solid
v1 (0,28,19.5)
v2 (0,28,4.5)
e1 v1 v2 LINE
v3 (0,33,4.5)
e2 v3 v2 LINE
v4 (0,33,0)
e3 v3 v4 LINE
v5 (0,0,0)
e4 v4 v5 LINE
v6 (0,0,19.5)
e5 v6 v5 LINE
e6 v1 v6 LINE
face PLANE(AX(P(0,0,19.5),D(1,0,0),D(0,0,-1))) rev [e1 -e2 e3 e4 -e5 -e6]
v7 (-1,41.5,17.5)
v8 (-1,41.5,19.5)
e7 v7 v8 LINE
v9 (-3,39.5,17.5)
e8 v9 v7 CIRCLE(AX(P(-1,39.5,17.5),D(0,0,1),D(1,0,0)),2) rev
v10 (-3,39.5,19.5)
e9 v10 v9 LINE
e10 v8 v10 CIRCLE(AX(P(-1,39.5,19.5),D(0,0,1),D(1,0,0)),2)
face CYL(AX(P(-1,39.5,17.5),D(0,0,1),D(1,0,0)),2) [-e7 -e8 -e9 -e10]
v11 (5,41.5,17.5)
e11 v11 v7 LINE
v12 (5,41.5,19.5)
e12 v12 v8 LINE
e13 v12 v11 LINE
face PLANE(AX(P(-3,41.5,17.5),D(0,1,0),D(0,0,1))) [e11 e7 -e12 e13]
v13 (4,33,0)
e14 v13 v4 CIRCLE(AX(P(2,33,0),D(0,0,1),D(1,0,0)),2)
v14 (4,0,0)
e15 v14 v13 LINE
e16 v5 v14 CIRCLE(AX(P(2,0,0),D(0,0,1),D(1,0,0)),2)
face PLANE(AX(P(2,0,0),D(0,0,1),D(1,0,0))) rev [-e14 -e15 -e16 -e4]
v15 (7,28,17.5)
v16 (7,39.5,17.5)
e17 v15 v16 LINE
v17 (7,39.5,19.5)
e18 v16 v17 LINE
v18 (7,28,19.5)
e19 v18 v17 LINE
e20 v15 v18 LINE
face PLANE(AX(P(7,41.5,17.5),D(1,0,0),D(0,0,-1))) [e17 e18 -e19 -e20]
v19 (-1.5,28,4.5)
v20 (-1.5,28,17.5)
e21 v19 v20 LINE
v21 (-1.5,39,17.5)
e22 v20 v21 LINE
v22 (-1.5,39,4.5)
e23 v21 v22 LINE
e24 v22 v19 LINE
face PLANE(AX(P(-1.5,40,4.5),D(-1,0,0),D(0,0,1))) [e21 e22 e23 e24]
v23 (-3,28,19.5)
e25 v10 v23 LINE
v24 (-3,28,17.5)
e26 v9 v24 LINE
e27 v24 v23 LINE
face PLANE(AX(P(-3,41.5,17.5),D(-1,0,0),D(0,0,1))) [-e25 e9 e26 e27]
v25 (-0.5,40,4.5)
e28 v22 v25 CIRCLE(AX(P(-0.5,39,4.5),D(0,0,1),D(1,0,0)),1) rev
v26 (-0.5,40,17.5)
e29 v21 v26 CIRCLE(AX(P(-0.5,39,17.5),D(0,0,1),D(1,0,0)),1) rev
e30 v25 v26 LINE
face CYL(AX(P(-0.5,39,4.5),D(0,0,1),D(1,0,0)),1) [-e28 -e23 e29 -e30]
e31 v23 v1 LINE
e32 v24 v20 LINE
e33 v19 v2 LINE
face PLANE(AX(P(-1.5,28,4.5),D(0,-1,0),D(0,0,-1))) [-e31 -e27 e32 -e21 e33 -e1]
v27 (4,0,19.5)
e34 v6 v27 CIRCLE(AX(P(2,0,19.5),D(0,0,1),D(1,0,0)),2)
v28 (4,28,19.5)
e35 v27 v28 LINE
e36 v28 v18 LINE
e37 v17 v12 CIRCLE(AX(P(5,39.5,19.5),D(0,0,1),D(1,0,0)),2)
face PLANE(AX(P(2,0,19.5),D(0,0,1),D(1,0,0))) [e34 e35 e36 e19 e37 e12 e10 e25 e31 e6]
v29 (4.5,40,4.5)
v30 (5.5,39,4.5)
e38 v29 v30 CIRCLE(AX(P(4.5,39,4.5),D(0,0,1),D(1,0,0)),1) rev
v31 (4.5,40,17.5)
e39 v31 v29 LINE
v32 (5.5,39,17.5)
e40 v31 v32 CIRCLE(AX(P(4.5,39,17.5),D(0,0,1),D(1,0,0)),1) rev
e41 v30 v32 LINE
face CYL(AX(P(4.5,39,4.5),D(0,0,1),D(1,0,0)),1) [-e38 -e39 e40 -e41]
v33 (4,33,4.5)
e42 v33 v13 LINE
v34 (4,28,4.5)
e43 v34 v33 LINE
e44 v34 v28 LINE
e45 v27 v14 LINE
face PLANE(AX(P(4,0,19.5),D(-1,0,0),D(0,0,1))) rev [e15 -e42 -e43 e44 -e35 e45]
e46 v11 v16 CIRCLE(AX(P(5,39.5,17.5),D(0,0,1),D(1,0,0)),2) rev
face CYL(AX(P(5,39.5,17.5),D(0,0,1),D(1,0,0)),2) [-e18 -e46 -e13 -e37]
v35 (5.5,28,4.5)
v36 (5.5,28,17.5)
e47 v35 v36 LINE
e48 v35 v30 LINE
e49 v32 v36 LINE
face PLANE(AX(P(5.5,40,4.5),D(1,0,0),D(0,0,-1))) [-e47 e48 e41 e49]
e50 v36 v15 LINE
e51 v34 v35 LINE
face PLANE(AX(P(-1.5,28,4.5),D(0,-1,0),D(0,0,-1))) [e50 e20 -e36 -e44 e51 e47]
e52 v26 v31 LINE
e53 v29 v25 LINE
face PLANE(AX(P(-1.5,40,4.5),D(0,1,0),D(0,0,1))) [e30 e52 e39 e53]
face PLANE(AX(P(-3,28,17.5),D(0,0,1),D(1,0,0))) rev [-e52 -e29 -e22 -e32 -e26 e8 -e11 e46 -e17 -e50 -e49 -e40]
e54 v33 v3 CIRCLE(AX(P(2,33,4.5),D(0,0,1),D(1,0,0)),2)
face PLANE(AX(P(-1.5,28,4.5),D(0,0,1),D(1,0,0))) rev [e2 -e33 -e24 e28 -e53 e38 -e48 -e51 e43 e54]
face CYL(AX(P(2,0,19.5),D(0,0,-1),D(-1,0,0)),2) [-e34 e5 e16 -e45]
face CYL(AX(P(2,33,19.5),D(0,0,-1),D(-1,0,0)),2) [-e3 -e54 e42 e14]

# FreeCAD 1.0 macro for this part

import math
import FreeCAD as App
import Part
import Sketcher

V = App.Vector


def edges_at(feature, points):
    """Names of the edges that pass closest to the given points."""
    edges = feature.Shape.Edges
    near = lambda p: min(range(len(edges)), key=lambda i: edges[i].distToShape(Part.Vertex(*p))[0])
    return sorted({f"Edge{near(p) + 1}" for p in points})

doc = App.newDocument("Part")
body = doc.addObject("PartDesign::Body", "Body")

# Sketch on XY plane
sketch1 = body.newObject("Sketcher::SketchObject", "Sketch")
sketch1.AttachmentSupport = (doc.getObject("XY_Plane"), [""])
sketch1.MapMode = "FlatFace"
sketch1.addGeometry([
    Part.LineSegment(V(0, 33, 0), V(0, 0, 0)),
    Part.ArcOfCircle(Part.Circle(V(2, 0, 0), V(0, 0, 1), 2), math.radians(180), math.radians(360)),
    Part.LineSegment(V(4, 0, 0), V(4, 33, 0)),
    Part.ArcOfCircle(Part.Circle(V(2, 33, 0), V(0, 0, 1), 2), math.radians(0), math.radians(180)),
], False)
sketch1.addConstraint([
    Sketcher.Constraint("Tangent", 0, 2, 1, 1),
    Sketcher.Constraint("Tangent", 1, 2, 2, 1),
    Sketcher.Constraint("Tangent", 2, 2, 3, 1),
    Sketcher.Constraint("Tangent", 3, 2, 0, 1),
    Sketcher.Constraint("Vertical", 0),
    Sketcher.Constraint("Vertical", 2),
    Sketcher.Constraint("Coincident", 0, 2, -1, 1),
    Sketcher.Constraint("Radius", 1, 2.0),
    Sketcher.Constraint("DistanceY", 0, 2, 0, 1, 33.0),
])
pad1 = body.newObject("PartDesign::Pad", "Pad")
pad1.Profile = sketch1
pad1.Length = 19.5

# Sketch on XY plane
sketch2 = body.newObject("Sketcher::SketchObject", "Sketch001")
sketch2.AttachmentSupport = (doc.getObject("XY_Plane"), [""])
sketch2.MapMode = "FlatFace"
sketch2.AttachmentOffset = App.Placement(V(0, 0, 19.5), App.Rotation())
sketch2.addGeometry([
    Part.LineSegment(V(-2, 40, 0), V(-2, 28, 0)),
    Part.LineSegment(V(-2, 28, 0), V(6, 28, 0)),
    Part.LineSegment(V(6, 28, 0), V(6, 40, 0)),
    Part.LineSegment(V(6, 40, 0), V(-2, 40, 0)),
], False)
sketch2.addConstraint([
    Sketcher.Constraint("Coincident", 0, 2, 1, 1),
    Sketcher.Constraint("Coincident", 1, 2, 2, 1),
    Sketcher.Constraint("Coincident", 2, 2, 3, 1),
    Sketcher.Constraint("Coincident", 3, 2, 0, 1),
    Sketcher.Constraint("Vertical", 0),
    Sketcher.Constraint("Horizontal", 1),
    Sketcher.Constraint("Vertical", 2),
    Sketcher.Constraint("Horizontal", 3),
    Sketcher.Constraint("DistanceX", 1, 1, 1, 2, 7.0),
    Sketcher.Constraint("DistanceY", 0, 2, 0, 1, 12.0),
    Sketcher.Constraint("DistanceY", -1, 1, 0, 2, 28.0),
    Sketcher.Constraint("DistanceX", 0, 2, -1, 1, 1.5),
])
pad2 = body.newObject("PartDesign::Pad", "Pad001")
pad2.Profile = sketch2
pad2.Length = 15
pad2.Reversed = True
doc.recompute()

fillet = body.newObject("PartDesign::Fillet", "Fillet")
fillet.Base = (pad2, edges_at(pad2, [(-1.5, 40, 12), (5.5, 40, 12)]))
fillet.Radius = 1

# Sketch on XY plane
sketch3 = body.newObject("Sketcher::SketchObject", "Sketch002")
sketch3.AttachmentSupport = (doc.getObject("XY_Plane"), [""])
sketch3.MapMode = "FlatFace"
sketch3.AttachmentOffset = App.Placement(V(0, 0, 19.5), App.Rotation())
sketch3.addGeometry([
    Part.LineSegment(V(-3, 42, 0), V(-3, 28, 0)),
    Part.LineSegment(V(-3, 28, 0), V(7, 28, 0)),
    Part.LineSegment(V(7, 28, 0), V(7, 42, 0)),
    Part.LineSegment(V(7, 42, 0), V(-3, 42, 0)),
], False)
sketch3.addConstraint([
    Sketcher.Constraint("Coincident", 0, 2, 1, 1),
    Sketcher.Constraint("Coincident", 1, 2, 2, 1),
    Sketcher.Constraint("Coincident", 2, 2, 3, 1),
    Sketcher.Constraint("Coincident", 3, 2, 0, 1),
    Sketcher.Constraint("Vertical", 0),
    Sketcher.Constraint("Horizontal", 1),
    Sketcher.Constraint("Vertical", 2),
    Sketcher.Constraint("Horizontal", 3),
    Sketcher.Constraint("DistanceX", 1, 1, 1, 2, 10.0),
    Sketcher.Constraint("DistanceY", 0, 2, 0, 1, 13.5),
    Sketcher.Constraint("DistanceX", 0, 2, -1, 1, 3.0),
    Sketcher.Constraint("DistanceY", -1, 1, 0, 2, 28.0),
])
pad3 = body.newObject("PartDesign::Pad", "Pad002")
pad3.Profile = sketch3
pad3.Length = 2
pad3.Reversed = True
doc.recompute()

fillet2 = body.newObject("PartDesign::Fillet", "Fillet001")
fillet2.Base = (pad3, edges_at(pad3, [(-3, 41.5, 18.5), (7, 41.5, 18.5)]))
fillet2.Radius = 2

doc.recompute()
